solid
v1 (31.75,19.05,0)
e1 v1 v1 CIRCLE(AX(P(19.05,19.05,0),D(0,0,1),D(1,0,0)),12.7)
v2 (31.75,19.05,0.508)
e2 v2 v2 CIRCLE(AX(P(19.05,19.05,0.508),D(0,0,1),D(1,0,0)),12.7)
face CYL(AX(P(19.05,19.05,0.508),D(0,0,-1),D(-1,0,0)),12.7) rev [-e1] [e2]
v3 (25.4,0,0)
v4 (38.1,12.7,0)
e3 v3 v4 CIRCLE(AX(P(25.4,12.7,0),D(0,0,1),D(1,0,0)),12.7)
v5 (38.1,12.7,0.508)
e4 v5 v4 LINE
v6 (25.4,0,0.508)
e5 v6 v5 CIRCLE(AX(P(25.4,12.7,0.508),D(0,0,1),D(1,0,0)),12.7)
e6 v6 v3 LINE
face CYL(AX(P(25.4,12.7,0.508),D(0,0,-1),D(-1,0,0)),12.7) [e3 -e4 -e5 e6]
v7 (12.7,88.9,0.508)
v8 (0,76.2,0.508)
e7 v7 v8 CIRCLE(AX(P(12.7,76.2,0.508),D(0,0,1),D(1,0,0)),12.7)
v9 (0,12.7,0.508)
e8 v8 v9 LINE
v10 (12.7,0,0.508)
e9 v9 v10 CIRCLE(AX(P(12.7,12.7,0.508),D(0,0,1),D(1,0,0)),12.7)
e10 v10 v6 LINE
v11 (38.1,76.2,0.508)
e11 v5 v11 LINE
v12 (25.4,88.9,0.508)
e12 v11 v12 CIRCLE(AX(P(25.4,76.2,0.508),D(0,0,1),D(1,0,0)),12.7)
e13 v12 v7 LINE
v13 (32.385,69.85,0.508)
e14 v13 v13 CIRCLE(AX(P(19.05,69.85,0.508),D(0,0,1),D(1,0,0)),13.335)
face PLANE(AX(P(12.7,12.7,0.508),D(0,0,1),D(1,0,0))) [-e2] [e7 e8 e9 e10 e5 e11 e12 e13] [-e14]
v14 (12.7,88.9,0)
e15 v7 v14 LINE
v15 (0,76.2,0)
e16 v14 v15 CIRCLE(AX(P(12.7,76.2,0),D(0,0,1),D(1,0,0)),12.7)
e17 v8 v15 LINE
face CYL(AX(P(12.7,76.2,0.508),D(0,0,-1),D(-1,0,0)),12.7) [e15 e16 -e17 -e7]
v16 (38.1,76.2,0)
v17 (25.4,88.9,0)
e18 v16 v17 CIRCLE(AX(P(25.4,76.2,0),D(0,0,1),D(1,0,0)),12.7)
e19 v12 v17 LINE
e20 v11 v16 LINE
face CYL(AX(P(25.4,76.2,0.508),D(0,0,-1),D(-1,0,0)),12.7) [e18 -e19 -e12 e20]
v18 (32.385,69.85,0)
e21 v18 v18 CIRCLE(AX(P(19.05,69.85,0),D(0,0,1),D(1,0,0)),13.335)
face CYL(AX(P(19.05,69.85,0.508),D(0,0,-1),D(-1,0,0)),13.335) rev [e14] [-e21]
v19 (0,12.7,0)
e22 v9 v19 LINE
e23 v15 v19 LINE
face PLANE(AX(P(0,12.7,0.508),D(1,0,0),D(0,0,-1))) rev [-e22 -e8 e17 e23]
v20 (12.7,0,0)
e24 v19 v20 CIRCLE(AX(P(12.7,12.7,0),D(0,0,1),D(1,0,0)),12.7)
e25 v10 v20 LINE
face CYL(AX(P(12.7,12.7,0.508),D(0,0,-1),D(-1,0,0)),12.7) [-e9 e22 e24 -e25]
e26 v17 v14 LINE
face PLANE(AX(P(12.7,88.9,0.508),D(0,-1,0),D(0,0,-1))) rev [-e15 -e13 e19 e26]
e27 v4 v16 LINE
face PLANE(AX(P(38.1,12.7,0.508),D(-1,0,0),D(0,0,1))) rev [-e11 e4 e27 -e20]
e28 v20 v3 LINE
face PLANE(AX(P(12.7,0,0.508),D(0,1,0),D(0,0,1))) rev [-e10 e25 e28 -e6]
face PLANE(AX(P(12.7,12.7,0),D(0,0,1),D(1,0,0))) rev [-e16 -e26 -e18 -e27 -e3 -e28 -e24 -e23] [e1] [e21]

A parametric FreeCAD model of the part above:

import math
import FreeCAD as App
import Part
import Sketcher
Q = App.Units.Quantity

doc = App.newDocument("Part")
body = doc.addObject("PartDesign::Body", "Body")

# Sketch on XY plane
sketch1 = body.newObject("Sketcher::SketchObject", "Sketch")
sketch1.AttachmentSupport = (doc.getObject("XY_Plane"), [""])
sketch1.MapMode = "FlatFace"
sketch1.addGeometry([
    Part.LineSegment(App.Vector(12.7, 0, 0), App.Vector(25.4, 0, 0)),  # 0
    Part.ArcOfCircle(Part.Circle(App.Vector(25.4, 12.7, 0), App.Vector(0, 0, 1), 12.7), math.radians(-90), math.radians(0)),  # 1
    Part.LineSegment(App.Vector(38.1, 12.7, 0), App.Vector(38.1, 76.2, 0)),  # 2
    Part.ArcOfCircle(Part.Circle(App.Vector(25.4, 76.2, 0), App.Vector(0, 0, 1), 12.7), math.radians(0), math.radians(90)),  # 3
    Part.LineSegment(App.Vector(25.4, 88.9, 0), App.Vector(12.7, 88.9, 0)),  # 4
    Part.ArcOfCircle(Part.Circle(App.Vector(12.7, 76.2, 0), App.Vector(0, 0, 1), 12.7), math.radians(90), math.radians(180)),  # 5
    Part.LineSegment(App.Vector(0, 76.2, 0), App.Vector(0, 12.7, 0)),  # 6
    Part.ArcOfCircle(Part.Circle(App.Vector(12.7, 12.7, 0), App.Vector(0, 0, 1), 12.7), math.radians(180), math.radians(270)),  # 7
    Part.Circle(App.Vector(19.05, 19.05, 0), App.Vector(0, 0, 1), 12.7),  # 8
    Part.Circle(App.Vector(19.05, 69.85, 0), App.Vector(0, 0, 1), 13.335),  # 9
], False)
sketch1.addConstraint([
    Sketcher.Constraint("Tangent", 0, 2, 1, 1),
    Sketcher.Constraint("Tangent", 1, 2, 2, 1),
    Sketcher.Constraint("Tangent", 2, 2, 3, 1),
    Sketcher.Constraint("Tangent", 3, 2, 4, 1),
    Sketcher.Constraint("Tangent", 4, 2, 5, 1),
    Sketcher.Constraint("Tangent", 5, 2, 6, 1),
    Sketcher.Constraint("Tangent", 6, 2, 7, 1),
    Sketcher.Constraint("Tangent", 7, 2, 0, 1),
    Sketcher.Constraint("Horizontal", 0),
    Sketcher.Constraint("Vertical", 2),
    Sketcher.Constraint("Horizontal", 4),
    Sketcher.Constraint("Vertical", 6),
    Sketcher.Constraint("Equal", 1, 3),
    Sketcher.Constraint("Equal", 3, 5),
    Sketcher.Constraint("Equal", 5, 7),
    Sketcher.Constraint("Equal", 7, 8),
    Sketcher.Constraint("PointOnObject", 0, 2, -1),
    Sketcher.Constraint("PointOnObject", 5, 2, -2),
    Sketcher.Constraint("Vertical", 8, 3, 9, 3),
    Sketcher.Constraint("Diameter", 8, Q("1 in")),
    Sketcher.Constraint("Diameter", 9, Q("1.05 in")),
    Sketcher.Constraint("DistanceX", 0, 1, 0, 2, Q("0.5 in")),
    Sketcher.Constraint("DistanceY", 2, 1, 2, 2, Q("2.5 in")),
    Sketcher.Constraint("DistanceY", 8, 3, 9, 3, Q("2 in")),
    Sketcher.Constraint("DistanceX", -1, 1, 8, 3, Q("0.75 in")),
    Sketcher.Constraint("DistanceY", -1, 1, 8, 3, Q("0.75 in")),
])
pad1 = body.newObject("PartDesign::Pad", "Pad")
pad1.Profile = sketch1
pad1.Length = Q("0.02 in")

doc.recompute()
